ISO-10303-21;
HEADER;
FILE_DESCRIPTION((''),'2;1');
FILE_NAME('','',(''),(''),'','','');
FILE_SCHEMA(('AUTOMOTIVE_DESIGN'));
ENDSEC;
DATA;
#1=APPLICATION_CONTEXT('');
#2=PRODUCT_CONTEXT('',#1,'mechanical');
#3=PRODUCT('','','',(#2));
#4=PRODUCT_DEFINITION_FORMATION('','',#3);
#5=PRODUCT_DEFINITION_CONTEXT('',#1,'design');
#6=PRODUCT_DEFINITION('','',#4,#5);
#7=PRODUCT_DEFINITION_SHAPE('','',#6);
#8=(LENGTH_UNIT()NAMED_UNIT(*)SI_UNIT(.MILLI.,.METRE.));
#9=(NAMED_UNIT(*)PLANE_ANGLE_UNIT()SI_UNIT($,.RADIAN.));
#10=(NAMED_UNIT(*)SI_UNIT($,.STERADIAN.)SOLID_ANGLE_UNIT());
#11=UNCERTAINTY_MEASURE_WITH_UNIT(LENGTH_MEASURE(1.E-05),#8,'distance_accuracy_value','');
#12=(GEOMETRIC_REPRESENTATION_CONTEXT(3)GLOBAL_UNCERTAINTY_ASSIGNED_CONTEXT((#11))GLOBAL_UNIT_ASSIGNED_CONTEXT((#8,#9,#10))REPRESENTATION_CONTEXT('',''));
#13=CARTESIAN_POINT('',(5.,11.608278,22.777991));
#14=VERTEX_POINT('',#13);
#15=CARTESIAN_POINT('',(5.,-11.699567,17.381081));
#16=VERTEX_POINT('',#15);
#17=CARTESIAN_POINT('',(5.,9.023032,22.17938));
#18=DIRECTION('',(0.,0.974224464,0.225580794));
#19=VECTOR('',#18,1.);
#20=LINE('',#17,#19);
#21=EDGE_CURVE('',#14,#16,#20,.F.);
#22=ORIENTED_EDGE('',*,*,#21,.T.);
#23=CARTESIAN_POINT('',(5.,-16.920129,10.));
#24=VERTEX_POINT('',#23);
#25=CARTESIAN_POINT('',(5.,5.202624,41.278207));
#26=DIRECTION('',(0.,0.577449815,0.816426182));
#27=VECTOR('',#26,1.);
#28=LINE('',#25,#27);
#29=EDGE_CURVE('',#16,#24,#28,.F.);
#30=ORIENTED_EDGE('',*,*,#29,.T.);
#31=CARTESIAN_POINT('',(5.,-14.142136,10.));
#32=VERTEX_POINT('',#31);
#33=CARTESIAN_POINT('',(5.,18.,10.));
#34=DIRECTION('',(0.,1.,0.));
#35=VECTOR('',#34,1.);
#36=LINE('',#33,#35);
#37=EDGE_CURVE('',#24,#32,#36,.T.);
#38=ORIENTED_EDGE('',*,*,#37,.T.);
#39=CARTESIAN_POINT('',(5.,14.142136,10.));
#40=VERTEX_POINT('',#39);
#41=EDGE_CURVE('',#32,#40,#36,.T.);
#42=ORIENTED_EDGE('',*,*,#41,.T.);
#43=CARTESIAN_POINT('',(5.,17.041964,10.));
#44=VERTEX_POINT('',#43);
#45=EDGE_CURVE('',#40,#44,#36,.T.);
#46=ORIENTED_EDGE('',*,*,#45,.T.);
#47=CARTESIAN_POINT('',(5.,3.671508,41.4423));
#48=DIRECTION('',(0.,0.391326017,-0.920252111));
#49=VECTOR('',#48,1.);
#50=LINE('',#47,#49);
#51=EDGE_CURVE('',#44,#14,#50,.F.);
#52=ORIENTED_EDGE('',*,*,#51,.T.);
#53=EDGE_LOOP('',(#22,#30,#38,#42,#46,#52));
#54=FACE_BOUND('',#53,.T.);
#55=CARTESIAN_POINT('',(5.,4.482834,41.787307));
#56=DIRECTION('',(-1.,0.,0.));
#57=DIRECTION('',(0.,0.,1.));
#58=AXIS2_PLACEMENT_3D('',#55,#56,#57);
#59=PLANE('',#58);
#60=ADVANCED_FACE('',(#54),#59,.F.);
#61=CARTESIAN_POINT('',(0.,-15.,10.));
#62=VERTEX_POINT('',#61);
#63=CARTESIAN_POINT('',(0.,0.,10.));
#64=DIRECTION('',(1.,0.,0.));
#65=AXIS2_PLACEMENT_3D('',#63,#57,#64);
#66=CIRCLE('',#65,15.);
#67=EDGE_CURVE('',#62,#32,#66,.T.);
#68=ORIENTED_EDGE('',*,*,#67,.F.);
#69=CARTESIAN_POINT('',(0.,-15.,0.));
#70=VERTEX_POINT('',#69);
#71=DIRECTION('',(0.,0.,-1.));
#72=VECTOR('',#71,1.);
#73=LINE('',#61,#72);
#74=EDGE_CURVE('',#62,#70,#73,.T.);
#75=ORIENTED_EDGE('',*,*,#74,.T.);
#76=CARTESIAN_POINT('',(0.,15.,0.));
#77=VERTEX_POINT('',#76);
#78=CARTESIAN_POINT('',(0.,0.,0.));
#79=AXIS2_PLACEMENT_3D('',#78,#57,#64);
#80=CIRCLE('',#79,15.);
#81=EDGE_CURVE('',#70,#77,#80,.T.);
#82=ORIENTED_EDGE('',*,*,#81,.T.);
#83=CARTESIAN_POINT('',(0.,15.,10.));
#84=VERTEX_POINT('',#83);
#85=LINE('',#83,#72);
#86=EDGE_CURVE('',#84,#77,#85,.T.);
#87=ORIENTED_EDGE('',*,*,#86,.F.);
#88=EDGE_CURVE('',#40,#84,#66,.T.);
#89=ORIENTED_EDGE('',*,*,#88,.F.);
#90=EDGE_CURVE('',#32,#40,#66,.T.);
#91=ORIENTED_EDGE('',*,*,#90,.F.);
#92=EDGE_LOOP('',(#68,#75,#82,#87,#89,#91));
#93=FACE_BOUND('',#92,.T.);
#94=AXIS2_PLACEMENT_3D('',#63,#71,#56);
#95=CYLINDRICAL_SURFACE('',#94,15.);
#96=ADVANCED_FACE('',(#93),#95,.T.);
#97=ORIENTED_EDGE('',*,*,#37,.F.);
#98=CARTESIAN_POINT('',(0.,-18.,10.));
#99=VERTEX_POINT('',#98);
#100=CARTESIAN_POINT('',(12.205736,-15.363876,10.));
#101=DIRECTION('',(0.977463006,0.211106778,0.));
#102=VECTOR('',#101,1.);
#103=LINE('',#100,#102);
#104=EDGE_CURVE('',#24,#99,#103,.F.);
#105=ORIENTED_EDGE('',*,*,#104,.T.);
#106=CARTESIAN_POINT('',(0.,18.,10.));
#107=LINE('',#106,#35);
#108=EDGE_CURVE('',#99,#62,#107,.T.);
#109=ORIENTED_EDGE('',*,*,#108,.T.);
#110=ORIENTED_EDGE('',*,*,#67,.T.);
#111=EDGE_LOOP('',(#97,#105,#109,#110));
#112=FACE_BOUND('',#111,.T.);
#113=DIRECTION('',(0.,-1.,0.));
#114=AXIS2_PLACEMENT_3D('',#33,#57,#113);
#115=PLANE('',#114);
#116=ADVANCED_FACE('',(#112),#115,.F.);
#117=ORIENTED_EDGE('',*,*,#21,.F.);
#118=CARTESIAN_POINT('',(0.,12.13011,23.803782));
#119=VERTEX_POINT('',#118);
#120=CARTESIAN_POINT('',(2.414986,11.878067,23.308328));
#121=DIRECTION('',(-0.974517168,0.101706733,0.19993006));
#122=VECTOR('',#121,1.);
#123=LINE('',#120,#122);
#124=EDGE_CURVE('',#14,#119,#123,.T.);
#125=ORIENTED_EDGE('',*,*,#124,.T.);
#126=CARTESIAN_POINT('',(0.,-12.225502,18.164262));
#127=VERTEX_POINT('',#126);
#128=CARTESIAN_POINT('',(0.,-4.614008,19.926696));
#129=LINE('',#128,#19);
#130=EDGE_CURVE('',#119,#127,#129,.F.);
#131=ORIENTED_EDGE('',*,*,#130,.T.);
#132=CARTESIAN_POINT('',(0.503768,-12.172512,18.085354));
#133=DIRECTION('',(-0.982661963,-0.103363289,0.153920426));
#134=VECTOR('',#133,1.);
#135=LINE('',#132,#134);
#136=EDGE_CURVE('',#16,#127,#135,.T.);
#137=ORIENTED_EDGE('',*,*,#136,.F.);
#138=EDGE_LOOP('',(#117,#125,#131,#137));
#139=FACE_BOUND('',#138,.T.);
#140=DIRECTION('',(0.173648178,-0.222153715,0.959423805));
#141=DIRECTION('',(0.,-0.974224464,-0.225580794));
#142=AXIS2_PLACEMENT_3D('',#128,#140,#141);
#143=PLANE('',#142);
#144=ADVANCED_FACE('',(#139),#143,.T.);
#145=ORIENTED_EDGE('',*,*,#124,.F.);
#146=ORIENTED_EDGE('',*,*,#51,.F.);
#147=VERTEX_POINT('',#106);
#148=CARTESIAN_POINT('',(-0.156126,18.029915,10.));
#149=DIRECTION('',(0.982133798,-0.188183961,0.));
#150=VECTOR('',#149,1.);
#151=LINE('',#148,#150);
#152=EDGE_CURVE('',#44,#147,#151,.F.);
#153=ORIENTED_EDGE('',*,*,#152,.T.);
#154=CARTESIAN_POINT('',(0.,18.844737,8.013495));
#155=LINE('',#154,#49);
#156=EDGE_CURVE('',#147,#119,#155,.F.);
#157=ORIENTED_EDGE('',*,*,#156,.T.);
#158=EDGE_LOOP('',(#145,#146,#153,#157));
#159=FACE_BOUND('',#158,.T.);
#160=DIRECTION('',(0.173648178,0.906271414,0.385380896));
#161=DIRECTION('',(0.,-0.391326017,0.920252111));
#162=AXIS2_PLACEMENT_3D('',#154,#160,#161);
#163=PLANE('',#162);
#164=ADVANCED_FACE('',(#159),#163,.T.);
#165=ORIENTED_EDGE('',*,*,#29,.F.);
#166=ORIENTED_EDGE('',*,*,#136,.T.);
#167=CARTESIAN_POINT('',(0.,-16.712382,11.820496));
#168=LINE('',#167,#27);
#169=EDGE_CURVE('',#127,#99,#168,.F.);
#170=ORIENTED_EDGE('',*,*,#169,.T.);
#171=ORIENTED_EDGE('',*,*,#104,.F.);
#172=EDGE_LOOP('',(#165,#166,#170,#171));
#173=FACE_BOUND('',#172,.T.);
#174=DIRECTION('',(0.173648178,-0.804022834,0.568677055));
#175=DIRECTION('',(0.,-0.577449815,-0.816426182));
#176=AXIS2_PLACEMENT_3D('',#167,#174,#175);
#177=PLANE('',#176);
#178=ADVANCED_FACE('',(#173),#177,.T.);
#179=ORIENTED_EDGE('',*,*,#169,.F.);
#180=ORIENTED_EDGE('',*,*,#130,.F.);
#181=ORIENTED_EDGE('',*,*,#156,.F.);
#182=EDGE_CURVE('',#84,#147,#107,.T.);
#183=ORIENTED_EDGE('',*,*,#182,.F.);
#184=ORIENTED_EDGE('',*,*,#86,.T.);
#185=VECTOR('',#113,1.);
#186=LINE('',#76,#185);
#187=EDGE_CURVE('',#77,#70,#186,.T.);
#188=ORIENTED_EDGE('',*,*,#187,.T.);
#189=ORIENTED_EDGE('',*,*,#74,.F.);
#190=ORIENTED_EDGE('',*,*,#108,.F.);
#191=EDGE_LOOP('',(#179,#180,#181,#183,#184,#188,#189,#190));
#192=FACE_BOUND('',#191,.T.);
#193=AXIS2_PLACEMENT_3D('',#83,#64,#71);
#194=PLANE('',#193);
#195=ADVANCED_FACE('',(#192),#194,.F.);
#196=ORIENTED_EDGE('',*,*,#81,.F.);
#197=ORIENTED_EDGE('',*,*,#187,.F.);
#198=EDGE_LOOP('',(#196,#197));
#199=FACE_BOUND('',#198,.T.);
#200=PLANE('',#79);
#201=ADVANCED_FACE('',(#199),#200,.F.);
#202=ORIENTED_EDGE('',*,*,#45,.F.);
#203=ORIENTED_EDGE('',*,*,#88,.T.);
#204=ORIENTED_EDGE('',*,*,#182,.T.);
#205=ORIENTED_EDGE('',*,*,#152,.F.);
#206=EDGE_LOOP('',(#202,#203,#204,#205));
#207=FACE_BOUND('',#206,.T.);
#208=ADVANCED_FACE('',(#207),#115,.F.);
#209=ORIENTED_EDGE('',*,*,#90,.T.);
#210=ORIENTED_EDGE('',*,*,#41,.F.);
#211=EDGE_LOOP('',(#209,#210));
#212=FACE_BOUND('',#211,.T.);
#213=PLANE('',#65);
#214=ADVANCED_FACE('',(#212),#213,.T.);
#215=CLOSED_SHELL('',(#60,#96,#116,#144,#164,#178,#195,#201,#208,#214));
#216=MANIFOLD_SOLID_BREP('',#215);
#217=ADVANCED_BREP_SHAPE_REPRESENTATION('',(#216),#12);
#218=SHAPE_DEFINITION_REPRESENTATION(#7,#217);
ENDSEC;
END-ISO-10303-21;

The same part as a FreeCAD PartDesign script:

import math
import FreeCAD as App
import Part
import Sketcher
from FreeCAD import Vector
Q = App.Units.Quantity


def faces_at(feature, points):
    """Names of the faces that lie closest to the given points."""
    faces = feature.Shape.Faces
    near = lambda p: min(range(len(faces)), key=lambda i: faces[i].distToShape(Part.Vertex(*p))[0])
    return sorted({f"Face{near(p) + 1}" for p in points})

doc = App.newDocument("Part")
body = doc.addObject("PartDesign::Body", "Body")

sketch1 = body.newObject("Sketcher::SketchObject", "Sketch")
sketch1.AttachmentSupport = (doc.getObject("XY_Plane"), [""])
sketch1.MapMode = "FlatFace"
sketch1.addGeometry([
    Part.LineSegment(Vector(0, 15, 0), Vector(0, -15, 0)),
    Part.ArcOfCircle(Part.Circle(Vector(0, 0, 0), Vector(0, 0, 1), 15), math.radians(-90), math.radians(90)),
], False)
sketch1.addConstraint([
    Sketcher.Constraint("Coincident", 0, 1, 1, 2),
    Sketcher.Constraint("Coincident", 1, 1, 0, 2),
    Sketcher.Constraint("Vertical", 0),
    Sketcher.Constraint("Coincident", 1, 3, -1, 1),
    Sketcher.Constraint("PointOnObject", 0, 1, -2),
    Sketcher.Constraint("Radius", 1, Q("15 mm")),
])
pad1 = body.newObject("PartDesign::Pad", "Pad")
pad1.Profile = sketch1
pad1.Length = 10

sketch2 = body.newObject("Sketcher::SketchObject", "Sketch001")
sketch2.AttachmentSupport = (doc.getObject("YZ_Plane"), [""])
sketch2.MapMode = "FlatFace"
sketch2.addGeometry([
    Part.LineSegment(Vector(-18, 10, 0), Vector(18, 10, 0)),
    Part.LineSegment(Vector(18, 10, 0), Vector(12, 24, 0)),
    Part.LineSegment(Vector(12, 24, 0), Vector(-12, 18, 0)),
    Part.LineSegment(Vector(-12, 18, 0), Vector(-18, 10, 0)),
], False)
sketch2.addConstraint([
    Sketcher.Constraint("Coincident", 0, 2, 1, 1),
    Sketcher.Constraint("Coincident", 1, 2, 2, 1),
    Sketcher.Constraint("Coincident", 2, 2, 3, 1),
    Sketcher.Constraint("Coincident", 3, 2, 0, 1),
    Sketcher.Constraint("Horizontal", 0),
    Sketcher.Constraint("DistanceX", 0, 1, 0, 2, Q("36 mm")),
    Sketcher.Constraint("Distance", 1, Q("15 mm")),
    Sketcher.Constraint("Distance", 2, Q("25 mm")),
    Sketcher.Constraint("Distance", 3, Q("10 mm")),
    Sketcher.Constraint("DistanceX", -1, 1, 0, 2, Q("18 mm")),
    Sketcher.Constraint("DistanceY", -1, 1, 0, 2, Q("10 mm")),
    Sketcher.Constraint("DistanceX", 2, 2, -1, 1, Q("12.225502 mm")),
])
pad2 = body.newObject("PartDesign::Pad", "Pad001")
pad2.Profile = sketch2
pad2.Length = 5
doc.recompute()

draft = body.newObject("PartDesign::Draft", "Draft")
draft.Base = (pad2, faces_at(pad2, [(2.5, -15.113, 14.082), (2.5, -0.048, 20.984), (2.5, 15.065, 16.902)]))
draft.NeutralPlane = (doc.getObject("YZ_Plane"), [""])
draft.Angle = 10
draft.Reversed = False

doc.recompute()
